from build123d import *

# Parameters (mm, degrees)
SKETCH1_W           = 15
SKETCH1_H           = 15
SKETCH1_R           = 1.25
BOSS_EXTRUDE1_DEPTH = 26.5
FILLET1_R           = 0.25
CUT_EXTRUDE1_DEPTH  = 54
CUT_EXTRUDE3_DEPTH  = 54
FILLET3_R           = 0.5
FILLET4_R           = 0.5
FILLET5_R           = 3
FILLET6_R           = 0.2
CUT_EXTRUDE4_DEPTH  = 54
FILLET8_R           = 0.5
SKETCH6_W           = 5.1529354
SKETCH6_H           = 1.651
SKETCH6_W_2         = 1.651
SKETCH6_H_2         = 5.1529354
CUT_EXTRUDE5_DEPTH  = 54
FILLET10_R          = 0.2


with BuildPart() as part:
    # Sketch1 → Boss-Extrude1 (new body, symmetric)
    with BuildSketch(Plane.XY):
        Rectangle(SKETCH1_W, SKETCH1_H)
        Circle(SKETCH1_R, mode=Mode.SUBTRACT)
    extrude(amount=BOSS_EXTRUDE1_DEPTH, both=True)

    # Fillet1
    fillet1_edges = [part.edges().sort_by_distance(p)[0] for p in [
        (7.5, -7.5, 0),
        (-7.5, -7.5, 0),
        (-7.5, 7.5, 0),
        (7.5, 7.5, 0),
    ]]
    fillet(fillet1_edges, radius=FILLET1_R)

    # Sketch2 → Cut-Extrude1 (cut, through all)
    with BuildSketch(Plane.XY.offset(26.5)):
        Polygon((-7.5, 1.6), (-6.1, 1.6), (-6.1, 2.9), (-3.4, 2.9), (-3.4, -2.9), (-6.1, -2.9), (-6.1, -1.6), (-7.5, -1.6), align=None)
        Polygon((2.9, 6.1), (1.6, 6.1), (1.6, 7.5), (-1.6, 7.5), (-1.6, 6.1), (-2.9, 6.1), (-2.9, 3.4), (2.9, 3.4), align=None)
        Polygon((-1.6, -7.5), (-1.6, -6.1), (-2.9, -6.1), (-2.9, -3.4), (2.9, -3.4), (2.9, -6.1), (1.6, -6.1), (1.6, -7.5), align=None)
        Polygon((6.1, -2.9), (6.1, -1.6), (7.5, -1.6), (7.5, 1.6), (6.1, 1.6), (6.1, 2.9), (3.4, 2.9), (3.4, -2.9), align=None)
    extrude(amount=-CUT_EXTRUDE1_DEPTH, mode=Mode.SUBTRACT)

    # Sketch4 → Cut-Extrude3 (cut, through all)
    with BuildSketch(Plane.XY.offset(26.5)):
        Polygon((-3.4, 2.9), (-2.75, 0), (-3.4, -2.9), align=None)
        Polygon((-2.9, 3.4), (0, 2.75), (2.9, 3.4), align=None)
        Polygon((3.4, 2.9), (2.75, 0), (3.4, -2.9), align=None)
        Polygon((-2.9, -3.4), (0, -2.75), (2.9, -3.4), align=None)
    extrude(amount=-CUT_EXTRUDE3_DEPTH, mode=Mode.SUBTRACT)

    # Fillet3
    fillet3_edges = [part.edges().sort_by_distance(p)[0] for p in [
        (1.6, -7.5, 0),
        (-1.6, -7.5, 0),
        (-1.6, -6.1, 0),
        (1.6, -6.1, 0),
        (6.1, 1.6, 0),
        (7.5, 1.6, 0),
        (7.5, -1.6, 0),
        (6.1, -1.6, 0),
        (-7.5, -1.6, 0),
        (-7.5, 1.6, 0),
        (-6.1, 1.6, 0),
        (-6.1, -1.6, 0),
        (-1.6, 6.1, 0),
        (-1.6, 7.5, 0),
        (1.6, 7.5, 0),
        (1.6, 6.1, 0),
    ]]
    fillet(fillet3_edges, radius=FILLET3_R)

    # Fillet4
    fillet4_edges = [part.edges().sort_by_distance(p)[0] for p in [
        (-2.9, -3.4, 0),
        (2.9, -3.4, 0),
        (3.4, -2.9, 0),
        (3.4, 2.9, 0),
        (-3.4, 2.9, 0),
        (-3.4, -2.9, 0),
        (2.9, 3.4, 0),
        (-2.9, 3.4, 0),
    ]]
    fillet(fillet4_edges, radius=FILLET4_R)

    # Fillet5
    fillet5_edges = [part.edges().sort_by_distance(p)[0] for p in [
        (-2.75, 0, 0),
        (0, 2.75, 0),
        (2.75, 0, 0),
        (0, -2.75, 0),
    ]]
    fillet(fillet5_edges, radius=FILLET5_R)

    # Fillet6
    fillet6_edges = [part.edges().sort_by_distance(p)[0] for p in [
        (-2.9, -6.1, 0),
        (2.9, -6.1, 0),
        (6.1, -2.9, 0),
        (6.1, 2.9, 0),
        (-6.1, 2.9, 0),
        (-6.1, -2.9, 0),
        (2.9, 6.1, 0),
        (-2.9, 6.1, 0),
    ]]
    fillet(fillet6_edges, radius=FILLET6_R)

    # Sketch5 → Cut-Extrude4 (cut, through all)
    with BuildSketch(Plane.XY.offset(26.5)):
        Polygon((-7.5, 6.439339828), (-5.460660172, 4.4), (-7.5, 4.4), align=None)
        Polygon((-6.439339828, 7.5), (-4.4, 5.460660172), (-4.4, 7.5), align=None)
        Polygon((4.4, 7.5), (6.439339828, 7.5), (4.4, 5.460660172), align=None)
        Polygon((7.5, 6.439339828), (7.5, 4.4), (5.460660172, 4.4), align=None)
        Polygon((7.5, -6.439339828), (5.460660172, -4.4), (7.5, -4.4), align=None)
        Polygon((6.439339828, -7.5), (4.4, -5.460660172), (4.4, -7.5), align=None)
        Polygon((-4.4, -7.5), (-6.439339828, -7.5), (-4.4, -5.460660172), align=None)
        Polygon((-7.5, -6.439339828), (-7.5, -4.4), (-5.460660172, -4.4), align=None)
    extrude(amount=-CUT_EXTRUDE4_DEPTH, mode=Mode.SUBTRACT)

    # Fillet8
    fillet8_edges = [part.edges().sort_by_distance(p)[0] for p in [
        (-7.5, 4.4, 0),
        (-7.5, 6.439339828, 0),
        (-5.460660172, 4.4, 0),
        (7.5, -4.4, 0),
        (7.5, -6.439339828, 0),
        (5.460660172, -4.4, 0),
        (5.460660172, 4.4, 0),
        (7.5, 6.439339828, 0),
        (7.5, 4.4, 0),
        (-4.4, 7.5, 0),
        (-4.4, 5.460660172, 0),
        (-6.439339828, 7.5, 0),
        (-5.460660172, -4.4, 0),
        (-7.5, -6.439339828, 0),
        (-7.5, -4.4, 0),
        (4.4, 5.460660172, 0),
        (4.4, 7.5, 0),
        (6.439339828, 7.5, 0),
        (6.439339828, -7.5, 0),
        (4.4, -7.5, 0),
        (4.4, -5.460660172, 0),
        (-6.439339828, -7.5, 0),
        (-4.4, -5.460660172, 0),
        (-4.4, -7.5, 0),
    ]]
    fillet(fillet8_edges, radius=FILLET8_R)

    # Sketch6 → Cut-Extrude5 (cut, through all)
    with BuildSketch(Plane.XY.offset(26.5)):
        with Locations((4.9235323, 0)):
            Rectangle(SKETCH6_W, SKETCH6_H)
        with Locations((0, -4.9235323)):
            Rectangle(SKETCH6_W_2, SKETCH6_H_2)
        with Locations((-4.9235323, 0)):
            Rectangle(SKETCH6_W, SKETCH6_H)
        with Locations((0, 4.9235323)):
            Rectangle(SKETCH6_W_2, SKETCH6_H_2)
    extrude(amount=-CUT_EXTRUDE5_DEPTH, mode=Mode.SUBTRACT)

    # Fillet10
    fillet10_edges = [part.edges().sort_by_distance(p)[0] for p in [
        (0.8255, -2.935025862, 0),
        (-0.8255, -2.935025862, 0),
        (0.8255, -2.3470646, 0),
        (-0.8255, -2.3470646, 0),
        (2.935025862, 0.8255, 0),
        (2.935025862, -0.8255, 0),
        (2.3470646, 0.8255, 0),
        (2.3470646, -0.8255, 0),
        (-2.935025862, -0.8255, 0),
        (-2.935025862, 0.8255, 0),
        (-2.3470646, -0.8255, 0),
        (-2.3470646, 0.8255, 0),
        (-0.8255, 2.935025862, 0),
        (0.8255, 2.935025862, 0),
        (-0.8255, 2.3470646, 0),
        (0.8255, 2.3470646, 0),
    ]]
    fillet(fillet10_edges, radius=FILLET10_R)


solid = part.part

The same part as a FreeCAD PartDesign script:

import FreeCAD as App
import Part
import Sketcher
from FreeCAD import Vector
Q = App.Units.Quantity


def edges_at(feature, points):
    """Names of the edges that pass closest to the given points."""
    edges = feature.Shape.Edges
    near = lambda p: min(range(len(edges)), key=lambda i: edges[i].distToShape(Part.Vertex(*p))[0])
    return sorted({f"Edge{near(p) + 1}" for p in points})


def add_polygon(sketch, points):
    """Adds a closed chain of lines whose ends are joined by coincident constraints."""
    first, n = sketch.GeometryCount, len(points)
    for a, b in zip(points, points[1:] + points[:1]):
        sketch.addGeometry(Part.LineSegment(App.Vector(*a, 0), App.Vector(*b, 0)), False)
    for i in range(n):
        sketch.addConstraint(Sketcher.Constraint("Coincident", first + i, 2, first + (i + 1) % n, 1))

doc = App.newDocument("Part")
body = doc.addObject("PartDesign::Body", "Body")

# Sketch on XY plane
sketch1 = body.newObject("Sketcher::SketchObject", "Sketch")
sketch1.AttachmentSupport = (doc.getObject("XY_Plane"), [""])
sketch1.MapMode = "FlatFace"
add_polygon(sketch1, [(-7.5, 7.5), (-7.5, -7.5), (7.5, -7.5), (7.5, 7.5)])  # lines 0-3
sketch1.addGeometry(Part.Circle(Vector(0, 0, 0), Vector(0, 0, 1), 1.2), False)  # 4
sketch1.addConstraint(Sketcher.Constraint("Vertical", 0))
sketch1.addConstraint(Sketcher.Constraint("Horizontal", 1))
sketch1.addConstraint(Sketcher.Constraint("Vertical", 2))
sketch1.addConstraint(Sketcher.Constraint("Horizontal", 3))
sketch1.addConstraint(Sketcher.Constraint("Coincident", 4, 3, -1, 1))
sketch1.addConstraint(Sketcher.Constraint("Symmetric", 0, 2, 2, 2, -1, 1))
sketch1.addConstraint(Sketcher.Constraint("Equal", 3, 0))
sketch1.addConstraint(Sketcher.Constraint("Diameter", 4, Q("2.5 mm")))
sketch1.addConstraint(Sketcher.Constraint("DistanceX", 1, 1, 1, 2, Q("15 mm")))
pad1 = body.newObject("PartDesign::Pad", "Pad")
pad1.Profile = sketch1
pad1.Length = 53
pad1.Midplane = True
doc.recompute()

fillet = body.newObject("PartDesign::Fillet", "Fillet")
fillet.Base = (pad1, edges_at(pad1, [
    (7.5, -7.5, 0),
    (-7.5, -7.5, 0),
    (-7.5, 7.5, 0),
    (7.5, 7.5, 0),
]))
fillet.Radius = 0.25

# Sketch on XY plane
sketch2 = body.newObject("Sketcher::SketchObject", "Sketch001")
sketch2.AttachmentSupport = (doc.getObject("XY_Plane"), [""])
sketch2.MapMode = "FlatFace"
sketch2.AttachmentOffset = App.Placement(Vector(0, 0, 26.5), App.Rotation())
add_polygon(sketch2, [(-6.1, 1.6), (-7.5, 1.6), (-7.5, -1.6), (-6.1, -1.6), (-6.1, -2.9), (-3.4, -2.9), (-3.4, 2.9), (-6.1, 2.9)])  # lines 0-7
add_polygon(sketch2, [(2.9, 6.1), (1.6, 6.1), (1.6, 7.5), (-1.6, 7.5), (-1.6, 6.1), (-2.9, 6.1), (-2.9, 3.4), (2.9, 3.4)])  # lines 8-15
add_polygon(sketch2, [(-1.6, -6.1), (-1.6, -7.5), (1.6, -7.5), (1.6, -6.1), (2.9, -6.1), (2.9, -3.4), (-2.9, -3.4), (-2.9, -6.1)])  # lines 16-23
add_polygon(sketch2, [(6.1, -2.9), (6.1, -1.6), (7.5, -1.6), (7.5, 1.6), (6.1, 1.6), (6.1, 2.9), (3.4, 2.9), (3.4, -2.9)])  # lines 24-31
sketch2.addConstraint(Sketcher.Constraint("Horizontal", 0))
sketch2.addConstraint(Sketcher.Constraint("Vertical", 1))
sketch2.addConstraint(Sketcher.Constraint("Horizontal", 2))
sketch2.addConstraint(Sketcher.Constraint("Vertical", 3))
sketch2.addConstraint(Sketcher.Constraint("Horizontal", 4))
sketch2.addConstraint(Sketcher.Constraint("Vertical", 5))
sketch2.addConstraint(Sketcher.Constraint("Horizontal", 6))
sketch2.addConstraint(Sketcher.Constraint("Vertical", 7))
sketch2.addConstraint(Sketcher.Constraint("Horizontal", 8))
sketch2.addConstraint(Sketcher.Constraint("Vertical", 9))
sketch2.addConstraint(Sketcher.Constraint("Horizontal", 10))
sketch2.addConstraint(Sketcher.Constraint("Vertical", 11))
sketch2.addConstraint(Sketcher.Constraint("Horizontal", 12))
sketch2.addConstraint(Sketcher.Constraint("Vertical", 13))
sketch2.addConstraint(Sketcher.Constraint("Horizontal", 14))
sketch2.addConstraint(Sketcher.Constraint("Vertical", 15))
sketch2.addConstraint(Sketcher.Constraint("Vertical", 16))
sketch2.addConstraint(Sketcher.Constraint("Horizontal", 17))
sketch2.addConstraint(Sketcher.Constraint("Vertical", 18))
sketch2.addConstraint(Sketcher.Constraint("Horizontal", 19))
sketch2.addConstraint(Sketcher.Constraint("Vertical", 20))
sketch2.addConstraint(Sketcher.Constraint("Horizontal", 21))
sketch2.addConstraint(Sketcher.Constraint("Vertical", 22))
sketch2.addConstraint(Sketcher.Constraint("Horizontal", 23))
sketch2.addConstraint(Sketcher.Constraint("Vertical", 24))
sketch2.addConstraint(Sketcher.Constraint("Horizontal", 25))
sketch2.addConstraint(Sketcher.Constraint("Vertical", 26))
sketch2.addConstraint(Sketcher.Constraint("Horizontal", 27))
sketch2.addConstraint(Sketcher.Constraint("Vertical", 28))
sketch2.addConstraint(Sketcher.Constraint("Horizontal", 29))
sketch2.addConstraint(Sketcher.Constraint("Vertical", 30))
sketch2.addConstraint(Sketcher.Constraint("Horizontal", 31))
sketch2.addConstraint(Sketcher.Constraint("Symmetric", 9, 2, 16, 2, -1, 1))
sketch2.addConstraint(Sketcher.Constraint("Symmetric", 11, 2, 18, 2, -1, 1))
sketch2.addConstraint(Sketcher.Constraint("Symmetric", 13, 2, 20, 2, -1, 1))
sketch2.addConstraint(Sketcher.Constraint("Symmetric", 15, 2, 22, 2, -1, 1))
sketch2.addConstraint(Sketcher.Constraint("Symmetric", 7, 2, 24, 2, -1, 1))
sketch2.addConstraint(Sketcher.Constraint("Symmetric", 1, 2, 26, 2, -1, 1))
sketch2.addConstraint(Sketcher.Constraint("Symmetric", 3, 2, 28, 2, -1, 1))
sketch2.addConstraint(Sketcher.Constraint("Symmetric", 5, 2, 30, 2, -1, 1))
sketch2.addConstraint(Sketcher.Constraint("Symmetric", 8, 2, 11, 2, -2))
sketch2.addConstraint(Sketcher.Constraint("Symmetric", 2, 2, 24, 2, -2))
sketch2.addConstraint(Sketcher.Constraint("Horizontal", 6, 2, 28, 2))
sketch2.addConstraint(Sketcher.Constraint("Vertical", 15, 2, 19, 2))
sketch2.addConstraint(Sketcher.Constraint("Equal", 17, 1))
sketch2.addConstraint(Sketcher.Constraint("Equal", 23, 3))
sketch2.addConstraint(Sketcher.Constraint("Equal", 27, 9))
sketch2.addConstraint(Sketcher.Constraint("Equal", 31, 13))
sketch2.addConstraint(Sketcher.Constraint("DistanceX", 0, 2, 0, 1, Q("1.4 mm")))
sketch2.addConstraint(Sketcher.Constraint("DistanceX", 4, 1, 4, 2, Q("2.7 mm")))
sketch2.addConstraint(Sketcher.Constraint("DistanceX", 8, 2, 8, 1, Q("1.3 mm")))
sketch2.addConstraint(Sketcher.Constraint("DistanceX", 10, 2, 10, 1, Q("3.2 mm")))
sketch2.addConstraint(Sketcher.Constraint("DistanceX", 5, 2, 8, 2, Q("5 mm")))
sketch2.addConstraint(Sketcher.Constraint("DistanceY", 4, 2, 8, 2, Q("9 mm")))
pocket1 = body.newObject("PartDesign::Pocket", "Pocket")
pocket1.Profile = sketch2
pocket1.Type = "ThroughAll"

# Sketch on XY plane
sketch3 = body.newObject("Sketcher::SketchObject", "Sketch002")
sketch3.AttachmentSupport = (doc.getObject("XY_Plane"), [""])
sketch3.MapMode = "FlatFace"
sketch3.AttachmentOffset = App.Placement(Vector(0, 0, 26.5), App.Rotation())
add_polygon(sketch3, [(-2.8, 0), (-3.4, 2.9), (-3.4, -2.9)])  # lines 0-2
add_polygon(sketch3, [(-2.9, 3.4), (0, 2.8), (2.9, 3.4)])  # lines 3-5
add_polygon(sketch3, [(3.4, 2.9), (2.8, 0), (3.4, -2.9)])  # lines 6-8
add_polygon(sketch3, [(0, -2.8), (-2.9, -3.4), (2.9, -3.4)])  # lines 9-11
sketch3.addConstraint(Sketcher.Constraint("Vertical", 1))
sketch3.addConstraint(Sketcher.Constraint("Horizontal", 5))
sketch3.addConstraint(Sketcher.Constraint("Vertical", 8))
sketch3.addConstraint(Sketcher.Constraint("Horizontal", 10))
sketch3.addConstraint(Sketcher.Constraint("Symmetric", 2, 2, 6, 2, -1, 1))
sketch3.addConstraint(Sketcher.Constraint("Symmetric", 0, 2, 7, 2, -1, 1))
sketch3.addConstraint(Sketcher.Constraint("Symmetric", 4, 2, 9, 2, -1, 1))
sketch3.addConstraint(Sketcher.Constraint("Symmetric", 3, 2, 11, 2, -1, 1))
sketch3.addConstraint(Sketcher.Constraint("PointOnObject", 2, 2, -1))
sketch3.addConstraint(Sketcher.Constraint("PointOnObject", 3, 2, -2))
sketch3.addConstraint(Sketcher.Constraint("Perpendicular", 2, 3))
sketch3.addConstraint(Sketcher.Constraint("Perpendicular", 0, 4))
sketch3.addConstraint(Sketcher.Constraint("Perpendicular", 3, 6))
sketch3.addConstraint(Sketcher.Constraint("Perpendicular", 6, 11))
sketch3.addConstraint(Sketcher.Constraint("Horizontal", 1, 2, 7, 2))
sketch3.addConstraint(Sketcher.Constraint("Equal", 10, 1))
sketch3.addConstraint(Sketcher.Constraint("DistanceX", 5, 2, 5, 1, Q("5.8 mm")))
sketch3.addConstraint(Sketcher.Constraint("DistanceX", 0, 2, -1, 1, Q("3.4 mm")))
sketch3.addConstraint(Sketcher.Constraint("DistanceY", -1, 1, 4, 2, Q("3.4 mm")))
sketch3.addConstraint(Sketcher.Constraint("DistanceX", 2, 2, 6, 2, Q("5.5 mm")))
pocket2 = body.newObject("PartDesign::Pocket", "Pocket001")
pocket2.Profile = sketch3
pocket2.Type = "ThroughAll"
doc.recompute()

fillet2 = body.newObject("PartDesign::Fillet", "Fillet001")
fillet2.Base = (pocket2, edges_at(pocket2, [
    (1.6, -7.5, 0),
    (-1.6, -7.5, 0),
    (-1.6, -6.1, 0),
    (1.6, -6.1, 0),
    (6.1, 1.6, 0),
    (7.5, 1.6, 0),
    (7.5, -1.6, 0),
    (6.1, -1.6, 0),
    (-7.5, -1.6, 0),
    (-7.5, 1.6, 0),
    (-6.1, 1.6, 0),
    (-6.1, -1.6, 0),
    (-1.6, 6.1, 0),
    (-1.6, 7.5, 0),
    (1.6, 7.5, 0),
    (1.6, 6.1, 0),
]))
fillet2.Radius = 0.5
doc.recompute()

fillet3 = body.newObject("PartDesign::Fillet", "Fillet002")
fillet3.Base = (fillet2, edges_at(fillet2, [
    (-2.9, -3.4, 0),
    (2.9, -3.4, 0),
    (3.4, -2.9, 0),
    (3.4, 2.9, 0),
    (-3.4, 2.9, 0),
    (-3.4, -2.9, 0),
    (2.9, 3.4, 0),
    (-2.9, 3.4, 0),
]))
fillet3.Radius = 0.5
doc.recompute()

fillet4 = body.newObject("PartDesign::Fillet", "Fillet003")
fillet4.Base = (fillet3, edges_at(fillet3, [
    (-2.75, 0, 0),
    (0, 2.75, 0),
    (2.75, 0, 0),
    (0, -2.75, 0),
]))
fillet4.Radius = 3
doc.recompute()

fillet5 = body.newObject("PartDesign::Fillet", "Fillet004")
fillet5.Base = (fillet4, edges_at(fillet4, [
    (-2.9, -6.1, 0),
    (2.9, -6.1, 0),
    (6.1, -2.9, 0),
    (6.1, 2.9, 0),
    (-6.1, 2.9, 0),
    (-6.1, -2.9, 0),
    (2.9, 6.1, 0),
    (-2.9, 6.1, 0),
]))
fillet5.Radius = 0.2

# Sketch on XY plane
sketch4 = body.newObject("Sketcher::SketchObject", "Sketch003")
sketch4.AttachmentSupport = (doc.getObject("XY_Plane"), [""])
sketch4.MapMode = "FlatFace"
sketch4.AttachmentOffset = App.Placement(Vector(0, 0, 26.5), App.Rotation())
add_polygon(sketch4, [(-5.5, 4.4), (-7.5, 6.4), (-7.5, 4.4)])  # lines 0-2
add_polygon(sketch4, [(-6.4, 7.5), (-4.4, 5.5), (-4.4, 7.5)])  # lines 3-5
add_polygon(sketch4, [(6.4, 7.5), (4.4, 7.5), (4.4, 5.5)])  # lines 6-8
add_polygon(sketch4, [(7.5, 4.4), (7.5, 6.4), (5.5, 4.4)])  # lines 9-11
add_polygon(sketch4, [(5.5, -4.4), (7.5, -6.4), (7.5, -4.4)])  # lines 12-14
add_polygon(sketch4, [(6.4, -7.5), (4.4, -5.5), (4.4, -7.5)])  # lines 15-17
add_polygon(sketch4, [(-6.4, -7.5), (-4.4, -7.5), (-4.4, -5.5)])  # lines 18-20
add_polygon(sketch4, [(-7.5, -4.4), (-7.5, -6.4), (-5.5, -4.4)])  # lines 21-23
sketch4.addConstraint(Sketcher.Constraint("Vertical", 1))
sketch4.addConstraint(Sketcher.Constraint("Horizontal", 2))
sketch4.addConstraint(Sketcher.Constraint("Vertical", 4))
sketch4.addConstraint(Sketcher.Constraint("Horizontal", 5))
sketch4.addConstraint(Sketcher.Constraint("Horizontal", 6))
sketch4.addConstraint(Sketcher.Constraint("Vertical", 7))
sketch4.addConstraint(Sketcher.Constraint("Vertical", 9))
sketch4.addConstraint(Sketcher.Constraint("Horizontal", 11))
sketch4.addConstraint(Sketcher.Constraint("Vertical", 13))
sketch4.addConstraint(Sketcher.Constraint("Horizontal", 14))
sketch4.addConstraint(Sketcher.Constraint("Vertical", 16))
sketch4.addConstraint(Sketcher.Constraint("Horizontal", 17))
sketch4.addConstraint(Sketcher.Constraint("Horizontal", 18))
sketch4.addConstraint(Sketcher.Constraint("Vertical", 19))
sketch4.addConstraint(Sketcher.Constraint("Vertical", 21))
sketch4.addConstraint(Sketcher.Constraint("Horizontal", 23))
sketch4.addConstraint(Sketcher.Constraint("Symmetric", 0, 2, 12, 2, -1, 1))
sketch4.addConstraint(Sketcher.Constraint("Symmetric", 2, 2, 14, 2, -1, 1))
sketch4.addConstraint(Sketcher.Constraint("Symmetric", 3, 2, 15, 2, -1, 1))
sketch4.addConstraint(Sketcher.Constraint("Symmetric", 5, 2, 17, 2, -1, 1))
sketch4.addConstraint(Sketcher.Constraint("Symmetric", 6, 2, 18, 2, -1, 1))
sketch4.addConstraint(Sketcher.Constraint("Symmetric", 9, 2, 21, 2, -1, 1))
sketch4.addConstraint(Sketcher.Constraint("Symmetric", 10, 2, 22, 2, -1, 1))
sketch4.addConstraint(Sketcher.Constraint("Symmetric", 4, 2, 6, 2, -2))
sketch4.addConstraint(Sketcher.Constraint("Symmetric", 0, 2, 9, 2, -2))
sketch4.addConstraint(Sketcher.Constraint("Symmetric", 2, 2, 10, 2, -2))
sketch4.addConstraint(Sketcher.Constraint("Parallel", 0, 3))
sketch4.addConstraint(Sketcher.Constraint("Perpendicular", 3, 8))
sketch4.addConstraint(Sketcher.Constraint("Parallel", 8, 10))
sketch4.addConstraint(Sketcher.Constraint("Perpendicular", 15, 20))
sketch4.addConstraint(Sketcher.Constraint("Horizontal", 3, 2, 7, 2))
sketch4.addConstraint(Sketcher.Constraint("Horizontal", 15, 2, 19, 2))
sketch4.addConstraint(Sketcher.Constraint("Equal", 2, 5))
sketch4.addConstraint(Sketcher.Constraint("DistanceX", 0, 2, -1, 1, Q("7.5 mm")))
sketch4.addConstraint(Sketcher.Constraint("DistanceY", -1, 1, 1, 2, Q("4.4 mm")))
sketch4.addConstraint(Sketcher.Constraint("DistanceX", 3, 2, -1, 1, Q("4.4 mm")))
sketch4.addConstraint(Sketcher.Constraint("DistanceY", -1, 1, 4, 2, Q("7.5 mm")))
sketch4.addConstraint(Sketcher.Constraint("DistanceX", 2, 1, 2, 2, Q("2.03934 mm")))
pocket3 = body.newObject("PartDesign::Pocket", "Pocket002")
pocket3.Profile = sketch4
pocket3.Type = "ThroughAll"
doc.recompute()

fillet6 = body.newObject("PartDesign::Fillet", "Fillet005")
fillet6.Base = (pocket3, edges_at(pocket3, [
    (-7.5, 4.4, 0),
    (-7.5, 6.439, 0),
    (-5.461, 4.4, 0),
    (7.5, -4.4, 0),
    (7.5, -6.439, 0),
    (5.461, -4.4, 0),
    (5.461, 4.4, 0),
    (7.5, 6.439, 0),
    (7.5, 4.4, 0),
    (-4.4, 7.5, 0),
    (-4.4, 5.461, 0),
    (-6.439, 7.5, 0),
    (-5.461, -4.4, 0),
    (-7.5, -6.439, 0),
    (-7.5, -4.4, 0),
    (4.4, 5.461, 0),
    (4.4, 7.5, 0),
    (6.439, 7.5, 0),
    (6.439, -7.5, 0),
    (4.4, -7.5, 0),
    (4.4, -5.461, 0),
    (-6.439, -7.5, 0),
    (-4.4, -5.461, 0),
    (-4.4, -7.5, 0),
]))
fillet6.Radius = 0.5

# Sketch on XY plane
sketch5 = body.newObject("Sketcher::SketchObject", "Sketch004")
sketch5.AttachmentSupport = (doc.getObject("XY_Plane"), [""])
sketch5.MapMode = "FlatFace"
sketch5.AttachmentOffset = App.Placement(Vector(0, 0, 26.5), App.Rotation())
add_polygon(sketch5, [(2.3, 0.8), (2.3, -0.8), (7.5, -0.8), (7.5, 0.8)])  # lines 0-3
add_polygon(sketch5, [(-0.8, -2.3), (-0.8, -7.5), (0.8, -7.5), (0.8, -2.3)])  # lines 4-7
add_polygon(sketch5, [(-7.5, 0.8), (-7.5, -0.8), (-2.3, -0.8), (-2.3, 0.8)])  # lines 8-11
add_polygon(sketch5, [(-0.8, 7.5), (-0.8, 2.3), (0.8, 2.3), (0.8, 7.5)])  # lines 12-15
sketch5.addConstraint(Sketcher.Constraint("Vertical", 0))
sketch5.addConstraint(Sketcher.Constraint("Horizontal", 1))
sketch5.addConstraint(Sketcher.Constraint("Vertical", 2))
sketch5.addConstraint(Sketcher.Constraint("Horizontal", 3))
sketch5.addConstraint(Sketcher.Constraint("Vertical", 4))
sketch5.addConstraint(Sketcher.Constraint("Horizontal", 5))
sketch5.addConstraint(Sketcher.Constraint("Vertical", 6))
sketch5.addConstraint(Sketcher.Constraint("Horizontal", 7))
sketch5.addConstraint(Sketcher.Constraint("Vertical", 8))
sketch5.addConstraint(Sketcher.Constraint("Horizontal", 9))
sketch5.addConstraint(Sketcher.Constraint("Vertical", 10))
sketch5.addConstraint(Sketcher.Constraint("Horizontal", 11))
sketch5.addConstraint(Sketcher.Constraint("Vertical", 12))
sketch5.addConstraint(Sketcher.Constraint("Horizontal", 13))
sketch5.addConstraint(Sketcher.Constraint("Vertical", 14))
sketch5.addConstraint(Sketcher.Constraint("Horizontal", 15))
sketch5.addConstraint(Sketcher.Constraint("Symmetric", 2, 2, 8, 2, -1, 1))
sketch5.addConstraint(Sketcher.Constraint("Symmetric", 0, 2, 10, 2, -1, 1))
sketch5.addConstraint(Sketcher.Constraint("Symmetric", 6, 2, 12, 2, -1, 1))
sketch5.addConstraint(Sketcher.Constraint("Symmetric", 4, 2, 14, 2, -1, 1))
sketch5.addConstraint(Sketcher.Constraint("Horizontal", 1, 2, 8, 2))
sketch5.addConstraint(Sketcher.Constraint("Vertical", 7, 2, 12, 2))
sketch5.addConstraint(Sketcher.Constraint("Equal", 15, 0))
sketch5.addConstraint(Sketcher.Constraint("Equal", 11, 4))
sketch5.addConstraint(Sketcher.Constraint("DistanceX", -1, 1, 1, 2, Q("7.5 mm")))
sketch5.addConstraint(Sketcher.Constraint("DistanceY", 4, 2, -1, 1, Q("7.5 mm")))
sketch5.addConstraint(Sketcher.Constraint("DistanceX", 5, 1, 5, 2, Q("1.651 mm")))
sketch5.addConstraint(Sketcher.Constraint("DistanceX", 1, 1, 1, 2, Q("5.152935 mm")))
pocket4 = body.newObject("PartDesign::Pocket", "Pocket003")
pocket4.Profile = sketch5
pocket4.Type = "ThroughAll"
doc.recompute()

fillet7 = body.newObject("PartDesign::Fillet", "Fillet006")
fillet7.Base = (pocket4, edges_at(pocket4, [
    (0.826, -2.935, 0),
    (-0.826, -2.935, 0),
    (0.826, -2.347, 0),
    (-0.826, -2.347, 0),
    (2.935, 0.826, 0),
    (2.935, -0.826, 0),
    (2.347, 0.826, 0),
    (2.347, -0.826, 0),
    (-2.935, -0.826, 0),
    (-2.935, 0.826, 0),
    (-2.347, -0.826, 0),
    (-2.347, 0.826, 0),
    (-0.826, 2.935, 0),
    (0.826, 2.935, 0),
    (-0.826, 2.347, 0),
    (0.826, 2.347, 0),
]))
fillet7.Radius = 0.2

doc.recompute()
